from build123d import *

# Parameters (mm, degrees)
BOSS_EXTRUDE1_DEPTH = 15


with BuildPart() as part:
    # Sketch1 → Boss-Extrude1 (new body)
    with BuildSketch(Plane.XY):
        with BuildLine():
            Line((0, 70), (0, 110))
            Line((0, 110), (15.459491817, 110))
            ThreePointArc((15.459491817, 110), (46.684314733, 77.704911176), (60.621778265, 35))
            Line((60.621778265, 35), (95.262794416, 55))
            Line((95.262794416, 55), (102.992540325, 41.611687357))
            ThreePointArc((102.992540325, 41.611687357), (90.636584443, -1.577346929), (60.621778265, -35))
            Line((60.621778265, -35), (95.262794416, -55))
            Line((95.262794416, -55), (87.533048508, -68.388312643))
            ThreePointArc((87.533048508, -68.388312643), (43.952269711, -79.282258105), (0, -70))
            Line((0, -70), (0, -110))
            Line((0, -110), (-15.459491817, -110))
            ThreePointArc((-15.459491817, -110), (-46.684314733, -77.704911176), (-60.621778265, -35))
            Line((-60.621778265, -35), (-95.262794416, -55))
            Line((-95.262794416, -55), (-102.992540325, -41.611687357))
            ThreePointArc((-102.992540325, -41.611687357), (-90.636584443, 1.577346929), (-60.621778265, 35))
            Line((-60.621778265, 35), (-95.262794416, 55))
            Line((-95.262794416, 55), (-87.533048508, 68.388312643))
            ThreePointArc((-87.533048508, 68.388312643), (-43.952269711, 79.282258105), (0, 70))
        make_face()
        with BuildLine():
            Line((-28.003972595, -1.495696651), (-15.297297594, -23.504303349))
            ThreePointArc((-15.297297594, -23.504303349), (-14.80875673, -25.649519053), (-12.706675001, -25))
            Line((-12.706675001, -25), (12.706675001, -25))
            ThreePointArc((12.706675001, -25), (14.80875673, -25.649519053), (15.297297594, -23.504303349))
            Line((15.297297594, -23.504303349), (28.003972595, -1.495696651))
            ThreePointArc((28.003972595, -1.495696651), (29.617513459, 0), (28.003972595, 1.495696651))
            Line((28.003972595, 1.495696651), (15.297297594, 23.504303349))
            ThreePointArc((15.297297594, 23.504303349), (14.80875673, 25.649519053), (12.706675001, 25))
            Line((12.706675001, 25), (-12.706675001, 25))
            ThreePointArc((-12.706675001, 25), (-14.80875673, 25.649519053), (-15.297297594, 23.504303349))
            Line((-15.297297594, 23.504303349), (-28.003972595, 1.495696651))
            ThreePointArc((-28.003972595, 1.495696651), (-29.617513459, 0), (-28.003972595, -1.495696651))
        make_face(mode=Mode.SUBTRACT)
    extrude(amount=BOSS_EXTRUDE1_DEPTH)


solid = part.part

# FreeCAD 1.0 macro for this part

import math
import FreeCAD as App
import Part
import Sketcher
from FreeCAD import Vector
Q = App.Units.Quantity

doc = App.newDocument("Part")
body = doc.addObject("PartDesign::Body", "Body")

sketch1 = body.newObject("Sketcher::SketchObject", "Sketch")
sketch1.AttachmentSupport = (doc.getObject("XY_Plane"), [""])
sketch1.MapMode = "FlatFace"
sketch1.addGeometry(Part.LineSegment(Vector(0, 110, 0), Vector(0, 70, 0)), False)
sketch1.addGeometry(Part.ArcOfCircle(Part.Circle(Vector(-42.1, -20.7, 0), Vector(0, 0, 1), 100), math.radians(65), math.radians(117)), False)
sketch1.addGeometry(Part.LineSegment(Vector(-87.5, 68.4, 0), Vector(-95.3, 55, 0)), False)
sketch1.addGeometry(Part.LineSegment(Vector(-95.3, 55, 0), Vector(-60.6, 35, 0)), False)
sketch1.addGeometry(Part.ArcOfCircle(Part.Circle(Vector(-3.1, -46.8, 0), Vector(0, 0, 1), 100), math.radians(125), math.radians(177)), False)
sketch1.addGeometry(Part.LineSegment(Vector(-103, -41.6, 0), Vector(-95.3, -55, 0)), False)
sketch1.addGeometry(Part.LineSegment(Vector(-95.3, -55, 0), Vector(-60.6, -35, 0)), False)
sketch1.addGeometry(Part.ArcOfCircle(Part.Circle(Vector(39, -26.1, 0), Vector(0, 0, 1), 100), math.radians(-175), math.radians(-123)), False)
sketch1.addGeometry(Part.LineSegment(Vector(-15.5, -110, 0), Vector(0, -110, 0)), False)
sketch1.addGeometry(Part.LineSegment(Vector(0, -110, 0), Vector(0, -70, 0)), False)
sketch1.addGeometry(Part.ArcOfCircle(Part.Circle(Vector(42.1, 20.7, 0), Vector(0, 0, 1), 100), math.radians(-115), math.radians(-63)), False)
sketch1.addGeometry(Part.LineSegment(Vector(87.5, -68.4, 0), Vector(95.3, -55, 0)), False)
sketch1.addGeometry(Part.LineSegment(Vector(95.3, -55, 0), Vector(60.6, -35, 0)), False)
sketch1.addGeometry(Part.ArcOfCircle(Part.Circle(Vector(3.1, 46.8, 0), Vector(0, 0, 1), 100), math.radians(-55), math.radians(-3)), False)
sketch1.addGeometry(Part.LineSegment(Vector(103, 41.6, 0), Vector(95.3, 55, 0)), False)
sketch1.addGeometry(Part.LineSegment(Vector(95.3, 55, 0), Vector(60.6, 35, 0)), False)
sketch1.addGeometry(Part.ArcOfCircle(Part.Circle(Vector(-39, 26.1, 0), Vector(0, 0, 1), 100), math.radians(5), math.radians(57)), False)
sketch1.addGeometry(Part.LineSegment(Vector(15.5, 110, 0), Vector(0, 110, 0)), False)
sketch1.addGeometry(Part.ArcOfCircle(Part.Circle(Vector(-28.1, 0, 0), Vector(0, 0, 1), 1.5), math.radians(86), math.radians(274)), False)
sketch1.addGeometry(Part.LineSegment(Vector(-28, 1.5, 0), Vector(-15.3, 23.5, 0)), False)
sketch1.addGeometry(Part.ArcOfCircle(Part.Circle(Vector(-14.1, 24.4, 0), Vector(0, 0, 1), 1.5), math.radians(26), math.radians(214)), False)
sketch1.addGeometry(Part.LineSegment(Vector(-12.7, 25, 0), Vector(12.7, 25, 0)), False)
sketch1.addGeometry(Part.ArcOfCircle(Part.Circle(Vector(14.1, 24.4, 0), Vector(0, 0, 1), 1.5), math.radians(-34), math.radians(154)), False)
sketch1.addGeometry(Part.LineSegment(Vector(15.3, 23.5, 0), Vector(28, 1.5, 0)), False)
sketch1.addGeometry(Part.ArcOfCircle(Part.Circle(Vector(28.1, 0, 0), Vector(0, 0, 1), 1.5), math.radians(-94), math.radians(94)), False)
sketch1.addGeometry(Part.LineSegment(Vector(28, -1.5, 0), Vector(15.3, -23.5, 0)), False)
sketch1.addGeometry(Part.ArcOfCircle(Part.Circle(Vector(14.1, -24.4, 0), Vector(0, 0, 1), 1.5), math.radians(-154), math.radians(34)), False)
sketch1.addGeometry(Part.LineSegment(Vector(12.7, -25, 0), Vector(-12.7, -25, 0)), False)
sketch1.addGeometry(Part.ArcOfCircle(Part.Circle(Vector(-14.1, -24.4, 0), Vector(0, 0, 1), 1.5), math.radians(146), math.radians(334)), False)
sketch1.addGeometry(Part.LineSegment(Vector(-15.3, -23.5, 0), Vector(-28, -1.5, 0)), False)
sketch1.addConstraint(Sketcher.Constraint("Coincident", 0, 2, 1, 1))
sketch1.addConstraint(Sketcher.Constraint("Coincident", 1, 2, 2, 1))
sketch1.addConstraint(Sketcher.Constraint("Coincident", 2, 2, 3, 1))
sketch1.addConstraint(Sketcher.Constraint("Coincident", 3, 2, 4, 1))
sketch1.addConstraint(Sketcher.Constraint("Coincident", 4, 2, 5, 1))
sketch1.addConstraint(Sketcher.Constraint("Coincident", 5, 2, 6, 1))
sketch1.addConstraint(Sketcher.Constraint("Coincident", 6, 2, 7, 1))
sketch1.addConstraint(Sketcher.Constraint("Coincident", 7, 2, 8, 1))
sketch1.addConstraint(Sketcher.Constraint("Coincident", 8, 2, 9, 1))
sketch1.addConstraint(Sketcher.Constraint("Coincident", 9, 2, 10, 1))
sketch1.addConstraint(Sketcher.Constraint("Coincident", 10, 2, 11, 1))
sketch1.addConstraint(Sketcher.Constraint("Coincident", 11, 2, 12, 1))
sketch1.addConstraint(Sketcher.Constraint("Coincident", 12, 2, 13, 1))
sketch1.addConstraint(Sketcher.Constraint("Coincident", 13, 2, 14, 1))
sketch1.addConstraint(Sketcher.Constraint("Coincident", 14, 2, 15, 1))
sketch1.addConstraint(Sketcher.Constraint("Coincident", 15, 2, 16, 1))
sketch1.addConstraint(Sketcher.Constraint("Coincident", 16, 2, 17, 1))
sketch1.addConstraint(Sketcher.Constraint("Coincident", 17, 2, 0, 1))
sketch1.addConstraint(Sketcher.Constraint("Coincident", 18, 1, 19, 1))
sketch1.addConstraint(Sketcher.Constraint("Coincident", 19, 2, 20, 2))
sketch1.addConstraint(Sketcher.Constraint("Coincident", 20, 1, 21, 1))
sketch1.addConstraint(Sketcher.Constraint("Coincident", 21, 2, 22, 2))
sketch1.addConstraint(Sketcher.Constraint("Coincident", 22, 1, 23, 1))
sketch1.addConstraint(Sketcher.Constraint("Coincident", 23, 2, 24, 2))
sketch1.addConstraint(Sketcher.Constraint("Coincident", 24, 1, 25, 1))
sketch1.addConstraint(Sketcher.Constraint("Coincident", 25, 2, 26, 2))
sketch1.addConstraint(Sketcher.Constraint("Coincident", 26, 1, 27, 1))
sketch1.addConstraint(Sketcher.Constraint("Coincident", 27, 2, 28, 2))
sketch1.addConstraint(Sketcher.Constraint("Coincident", 28, 1, 29, 1))
sketch1.addConstraint(Sketcher.Constraint("Coincident", 29, 2, 18, 2))
sketch1.addConstraint(Sketcher.Constraint("Vertical", 0))
sketch1.addConstraint(Sketcher.Constraint("Horizontal", 8))
sketch1.addConstraint(Sketcher.Constraint("Vertical", 9))
sketch1.addConstraint(Sketcher.Constraint("Horizontal", 17))
sketch1.addConstraint(Sketcher.Constraint("Horizontal", 21))
sketch1.addConstraint(Sketcher.Constraint("Horizontal", 27))
sketch1.addConstraint(Sketcher.Constraint("Equal", 1, 4))
sketch1.addConstraint(Sketcher.Constraint("Equal", 4, 7))
sketch1.addConstraint(Sketcher.Constraint("Equal", 7, 10))
sketch1.addConstraint(Sketcher.Constraint("Equal", 10, 13))
sketch1.addConstraint(Sketcher.Constraint("Equal", 13, 16))
sketch1.addConstraint(Sketcher.Constraint("Equal", 18, 20))
sketch1.addConstraint(Sketcher.Constraint("Equal", 20, 22))
sketch1.addConstraint(Sketcher.Constraint("Equal", 22, 24))
sketch1.addConstraint(Sketcher.Constraint("Equal", 24, 26))
sketch1.addConstraint(Sketcher.Constraint("Equal", 26, 28))
sketch1.addConstraint(Sketcher.Constraint("Symmetric", 1, 3, 10, 3, -1, 1))
sketch1.addConstraint(Sketcher.Constraint("Symmetric", 4, 3, 13, 3, -1, 1))
sketch1.addConstraint(Sketcher.Constraint("Symmetric", 7, 3, 16, 3, -1, 1))
sketch1.addConstraint(Sketcher.Constraint("Symmetric", 18, 3, 24, 3, -1, 1))
sketch1.addConstraint(Sketcher.Constraint("Symmetric", 20, 3, 26, 3, -1, 1))
sketch1.addConstraint(Sketcher.Constraint("Symmetric", 22, 3, 28, 3, -1, 1))
sketch1.addConstraint(Sketcher.Constraint("Symmetric", 2, 2, 11, 2, -1, 1))
sketch1.addConstraint(Sketcher.Constraint("Symmetric", 5, 2, 14, 2, -1, 1))
sketch1.addConstraint(Sketcher.Constraint("Symmetric", 8, 2, 17, 2, -1, 1))
sketch1.addConstraint(Sketcher.Constraint("Symmetric", 20, 3, 22, 3, -2))
sketch1.addConstraint(Sketcher.Constraint("Symmetric", 5, 2, 11, 2, -2))
sketch1.addConstraint(Sketcher.Constraint("Symmetric", 6, 2, 12, 2, -2))
sketch1.addConstraint(Sketcher.Constraint("Symmetric", 3, 2, 15, 2, -2))
sketch1.addConstraint(Sketcher.Constraint("Symmetric", 18, 1, 23, 2, -2))
sketch1.addConstraint(Sketcher.Constraint("PointOnObject", 0, 2, -2))
sketch1.addConstraint(Sketcher.Constraint("Perpendicular", 2, 3))
sketch1.addConstraint(Sketcher.Constraint("Perpendicular", 5, 6))
sketch1.addConstraint(Sketcher.Constraint("Perpendicular", 3, 11))
sketch1.addConstraint(Sketcher.Constraint("Perpendicular", 6, 14))
sketch1.addConstraint(Sketcher.Constraint("Perpendicular", 12, 19))
sketch1.addConstraint(Sketcher.Constraint("Perpendicular", 15, 23))
sketch1.addConstraint(Sketcher.Constraint("Parallel", 19, 25))
sketch1.addConstraint(Sketcher.Constraint("Parallel", 23, 29))
sketch1.addConstraint(Sketcher.Constraint("Horizontal", 25, 2, 28, 1))
sketch1.addConstraint(Sketcher.Constraint("Vertical", 23, 2, 24, 1))
sketch1.addConstraint(Sketcher.Constraint("Vertical", 21, 2, 26, 1))
sketch1.addConstraint(Sketcher.Constraint("Equal", 2, 5))
sketch1.addConstraint(Sketcher.Constraint("Radius", 1, 100.0))
sketch1.addConstraint(Sketcher.Constraint("Radius", 18, 1.5))
sketch1.addConstraint(Sketcher.Constraint("DistanceY", 0, 2, 0, 1, 40.0))
sketch1.addConstraint(Sketcher.Constraint("Angle", 2, Q("-120 deg")))
sketch1.addConstraint(Sketcher.Constraint("Distance", 3, 40.0))
sketch1.addConstraint(Sketcher.Constraint("DistanceY", -1, 1, 0, 2, 70.0))
sketch1.addConstraint(Sketcher.Constraint("DistanceY", -1, 1, 2, 2, 55.0))
sketch1.addConstraint(Sketcher.Constraint("DistanceY", -1, 1, 20, 1, 25.0))
sketch1.addConstraint(Sketcher.Constraint("DistanceY", 25, 2, 23, 2, 25.0))
sketch1.addConstraint(Sketcher.Constraint("DistanceX", 8, 1, 8, 2, 15.459492))
sketch1.addConstraint(Sketcher.Constraint("DistanceX", 21, 1, 21, 2, 25.41335))
sketch1.addConstraint(Sketcher.Constraint("DistanceY", 7, 3, -1, 1, 26.1191))
sketch1.addConstraint(Sketcher.Constraint("DistanceY", 4, 3, 1, 3, 26.1191))
sketch1.addConstraint(Sketcher.Constraint("DistanceY", 23, 2, 10, 3, 19.205099))
sketch1.addConstraint(Sketcher.Constraint("DistanceY", -1, 1, 20, 3, 24.350481))
pad1 = body.newObject("PartDesign::Pad", "Pad")
pad1.Profile = sketch1
pad1.Length = 15

doc.recompute()
